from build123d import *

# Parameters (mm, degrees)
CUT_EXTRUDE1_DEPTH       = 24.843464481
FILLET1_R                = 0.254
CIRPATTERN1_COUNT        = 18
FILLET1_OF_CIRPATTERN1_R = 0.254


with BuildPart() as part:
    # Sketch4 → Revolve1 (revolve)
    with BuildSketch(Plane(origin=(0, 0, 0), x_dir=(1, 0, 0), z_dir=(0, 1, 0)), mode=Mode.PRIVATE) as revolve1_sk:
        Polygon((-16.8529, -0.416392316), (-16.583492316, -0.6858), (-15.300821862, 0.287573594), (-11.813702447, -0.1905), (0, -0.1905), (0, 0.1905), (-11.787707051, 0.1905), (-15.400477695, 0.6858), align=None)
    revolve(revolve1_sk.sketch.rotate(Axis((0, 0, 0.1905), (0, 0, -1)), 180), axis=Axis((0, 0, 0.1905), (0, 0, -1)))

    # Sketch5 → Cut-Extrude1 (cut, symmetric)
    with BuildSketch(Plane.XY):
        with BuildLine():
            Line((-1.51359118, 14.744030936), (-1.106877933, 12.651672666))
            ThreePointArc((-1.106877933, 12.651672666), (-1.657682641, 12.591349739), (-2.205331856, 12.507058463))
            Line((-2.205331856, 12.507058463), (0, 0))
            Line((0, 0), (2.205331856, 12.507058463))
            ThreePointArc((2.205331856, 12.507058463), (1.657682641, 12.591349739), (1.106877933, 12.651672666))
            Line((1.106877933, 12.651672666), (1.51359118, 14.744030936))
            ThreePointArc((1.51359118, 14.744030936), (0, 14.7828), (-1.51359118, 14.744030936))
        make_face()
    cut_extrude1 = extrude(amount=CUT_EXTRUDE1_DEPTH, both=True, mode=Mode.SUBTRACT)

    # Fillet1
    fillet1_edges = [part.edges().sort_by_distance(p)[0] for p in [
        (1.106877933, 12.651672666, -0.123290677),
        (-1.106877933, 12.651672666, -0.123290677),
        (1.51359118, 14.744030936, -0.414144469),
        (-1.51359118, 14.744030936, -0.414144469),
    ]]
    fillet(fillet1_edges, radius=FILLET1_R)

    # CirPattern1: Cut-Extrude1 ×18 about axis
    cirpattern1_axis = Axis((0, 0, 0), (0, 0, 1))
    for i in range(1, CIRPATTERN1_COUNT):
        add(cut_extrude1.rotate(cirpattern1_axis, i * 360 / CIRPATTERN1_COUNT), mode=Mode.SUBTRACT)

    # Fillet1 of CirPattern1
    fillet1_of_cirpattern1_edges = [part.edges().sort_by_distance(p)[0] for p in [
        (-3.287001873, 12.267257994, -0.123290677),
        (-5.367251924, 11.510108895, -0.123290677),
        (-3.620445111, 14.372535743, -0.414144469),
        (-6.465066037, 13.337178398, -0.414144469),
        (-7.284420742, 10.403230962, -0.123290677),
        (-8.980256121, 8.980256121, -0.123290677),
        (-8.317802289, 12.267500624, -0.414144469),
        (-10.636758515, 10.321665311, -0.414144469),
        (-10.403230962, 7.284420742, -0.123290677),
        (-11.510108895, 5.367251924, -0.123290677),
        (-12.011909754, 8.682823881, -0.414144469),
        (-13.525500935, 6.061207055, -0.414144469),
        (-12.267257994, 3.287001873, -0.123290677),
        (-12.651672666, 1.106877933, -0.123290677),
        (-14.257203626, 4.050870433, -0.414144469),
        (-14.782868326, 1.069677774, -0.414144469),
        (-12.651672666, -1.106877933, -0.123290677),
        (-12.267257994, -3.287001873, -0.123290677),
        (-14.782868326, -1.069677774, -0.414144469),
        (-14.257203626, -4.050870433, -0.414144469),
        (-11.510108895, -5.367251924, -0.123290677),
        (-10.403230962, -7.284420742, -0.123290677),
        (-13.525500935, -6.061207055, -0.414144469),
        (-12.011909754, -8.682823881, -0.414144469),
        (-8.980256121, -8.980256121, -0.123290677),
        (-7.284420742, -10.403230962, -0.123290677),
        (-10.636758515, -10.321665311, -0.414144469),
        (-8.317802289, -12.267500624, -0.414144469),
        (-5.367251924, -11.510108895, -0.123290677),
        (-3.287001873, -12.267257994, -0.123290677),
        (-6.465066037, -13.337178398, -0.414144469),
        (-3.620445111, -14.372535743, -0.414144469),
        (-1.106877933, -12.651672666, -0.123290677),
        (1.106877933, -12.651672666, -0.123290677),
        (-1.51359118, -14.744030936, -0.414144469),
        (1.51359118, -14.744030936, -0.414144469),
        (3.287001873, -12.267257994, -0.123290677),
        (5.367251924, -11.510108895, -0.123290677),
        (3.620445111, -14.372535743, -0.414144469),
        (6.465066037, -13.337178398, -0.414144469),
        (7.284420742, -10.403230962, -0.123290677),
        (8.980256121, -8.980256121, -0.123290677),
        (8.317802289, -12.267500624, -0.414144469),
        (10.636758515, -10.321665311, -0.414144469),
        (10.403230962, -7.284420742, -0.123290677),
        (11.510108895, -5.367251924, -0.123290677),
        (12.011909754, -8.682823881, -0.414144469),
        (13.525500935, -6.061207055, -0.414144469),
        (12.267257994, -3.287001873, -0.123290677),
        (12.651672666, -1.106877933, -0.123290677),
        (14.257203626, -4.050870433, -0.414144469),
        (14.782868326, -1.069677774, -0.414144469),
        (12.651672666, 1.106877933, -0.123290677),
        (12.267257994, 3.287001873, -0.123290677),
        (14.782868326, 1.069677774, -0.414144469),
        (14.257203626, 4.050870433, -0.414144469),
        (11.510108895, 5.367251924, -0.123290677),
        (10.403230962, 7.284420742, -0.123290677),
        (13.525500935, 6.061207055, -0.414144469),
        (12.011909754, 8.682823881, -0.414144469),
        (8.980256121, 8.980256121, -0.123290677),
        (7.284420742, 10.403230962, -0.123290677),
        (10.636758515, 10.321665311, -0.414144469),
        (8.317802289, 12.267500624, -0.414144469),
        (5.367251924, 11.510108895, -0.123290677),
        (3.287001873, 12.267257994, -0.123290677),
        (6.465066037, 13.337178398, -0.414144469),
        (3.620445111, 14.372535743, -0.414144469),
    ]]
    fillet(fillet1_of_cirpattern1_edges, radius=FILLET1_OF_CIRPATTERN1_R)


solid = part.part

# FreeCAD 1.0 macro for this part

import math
import FreeCAD as App
import Part
import Sketcher
Q = App.Units.Quantity


def edges_at(feature, points):
    """Names of the edges that pass closest to the given points."""
    edges = feature.Shape.Edges
    near = lambda p: min(range(len(edges)), key=lambda i: edges[i].distToShape(Part.Vertex(*p))[0])
    return sorted({f"Edge{near(p) + 1}" for p in points})


def add_polygon(sketch, points):
    """Adds a closed chain of lines whose ends are joined by coincident constraints."""
    first, n = sketch.GeometryCount, len(points)
    for a, b in zip(points, points[1:] + points[:1]):
        sketch.addGeometry(Part.LineSegment(App.Vector(*a, 0), App.Vector(*b, 0)), False)
    for i in range(n):
        sketch.addConstraint(Sketcher.Constraint("Coincident", first + i, 2, first + (i + 1) % n, 1))

doc = App.newDocument("Part")
body = doc.addObject("PartDesign::Body", "Body")

sketch1 = body.newObject("Sketcher::SketchObject", "Sketch")
sketch1.AttachmentSupport = (doc.getObject("XZ_Plane"), [""])
sketch1.MapMode = "FlatFace"
add_polygon(sketch1, [(-16.85, 0.42), (-16.58, 0.69), (-15.3, -0.29), (-11.81, 0.19), (0, 0.19), (0, -0.19), (-11.79, -0.19), (-15.4, -0.69)])
sketch1.addConstraint(Sketcher.Constraint("Horizontal", 3))
sketch1.addConstraint(Sketcher.Constraint("Vertical", 4))
sketch1.addConstraint(Sketcher.Constraint("Horizontal", 5))
sketch1.addConstraint(Sketcher.Constraint("Symmetric", 3, 2, 4, 2, -1, 1))
sketch1.addConstraint(Sketcher.Constraint("Parallel", 2, 6))
sketch1.addConstraint(Sketcher.Constraint("Parallel", 1, 7))
sketch1.addConstraint(Sketcher.Constraint("Angle", 0, Q("45 deg")))
sketch1.addConstraint(Sketcher.Constraint("DistanceY", 4, 2, 4, 1, Q("0.015 in")))
sketch1.addConstraint(Sketcher.Constraint("Distance", 0, Q("0.015 in")))
sketch1.addConstraint(Sketcher.Constraint("DistanceY", -1, 1, 0, 2, Q("0.027 in")))
sketch1.addConstraint(Sketcher.Constraint("DistanceY", 6, 2, -1, 1, Q("0.027 in")))
sketch1.addConstraint(Sketcher.Constraint("DistanceX", 7, 2, -1, 1, Q("0.6635 in")))
sketch1.addConstraint(Sketcher.Constraint("Distance", 2, Q("3.519738 mm")))
sketch1.addConstraint(Sketcher.Constraint("DistanceX", 3, 1, 3, 2, Q("11.813702 mm")))
sketch1.addConstraint(Sketcher.Constraint("DistanceX", 5, 2, 5, 1, Q("11.787707 mm")))
revolution = body.newObject("PartDesign::Revolution", "Revolution")
revolution.Profile = sketch1
revolution.ReferenceAxis = (sketch1, ["V_Axis"])
revolution.Angle = 360

sketch2 = body.newObject("Sketcher::SketchObject", "Sketch001")
sketch2.AttachmentSupport = (doc.getObject("XY_Plane"), [""])
sketch2.MapMode = "FlatFace"
sketch2.addGeometry(Part.LineSegment(App.Vector(-1.5, 14.7, 0), App.Vector(-1.1, 12.7, 0)), False)
sketch2.addGeometry(Part.ArcOfCircle(Part.Circle(App.Vector(0, 0, 0), App.Vector(0, 0, 1), 12.7), math.radians(95), math.radians(100)), False)
sketch2.addGeometry(Part.LineSegment(App.Vector(-2.2, 12.5, 0), App.Vector(0, 0, 0)), False)
sketch2.addGeometry(Part.LineSegment(App.Vector(0, 0, 0), App.Vector(2.2, 12.5, 0)), False)
sketch2.addGeometry(Part.ArcOfCircle(Part.Circle(App.Vector(0, 0, 0), App.Vector(0, 0, 1), 12.7), math.radians(80), math.radians(85)), False)
sketch2.addGeometry(Part.LineSegment(App.Vector(1.1, 12.7, 0), App.Vector(1.5, 14.7, 0)), False)
sketch2.addGeometry(Part.ArcOfCircle(Part.Circle(App.Vector(0, -14.8, 0), App.Vector(0, 0, 1), 29.6), math.radians(87.07), math.radians(92.93)), False)
sketch2.addConstraint(Sketcher.Constraint("Coincident", 0, 2, 1, 1))
sketch2.addConstraint(Sketcher.Constraint("Coincident", 1, 2, 2, 1))
sketch2.addConstraint(Sketcher.Constraint("Coincident", 2, 2, 3, 1))
sketch2.addConstraint(Sketcher.Constraint("Coincident", 3, 2, 4, 1))
sketch2.addConstraint(Sketcher.Constraint("Coincident", 4, 2, 5, 1))
sketch2.addConstraint(Sketcher.Constraint("Coincident", 5, 2, 6, 1))
sketch2.addConstraint(Sketcher.Constraint("Coincident", 6, 2, 0, 1))
sketch2.addConstraint(Sketcher.Constraint("Coincident", 1, 3, -1, 1))
sketch2.addConstraint(Sketcher.Constraint("Coincident", 4, 3, -1, 1))
sketch2.addConstraint(Sketcher.Constraint("Coincident", 2, 2, -1, 1))
sketch2.addConstraint(Sketcher.Constraint("Equal", 1, 4))
sketch2.addConstraint(Sketcher.Constraint("Symmetric", 5, 2, 6, 2, -2))
sketch2.addConstraint(Sketcher.Constraint("Horizontal", 1, 2, 3, 2))
sketch2.addConstraint(Sketcher.Constraint("Horizontal", 0, 2, 4, 2))
sketch2.addConstraint(Sketcher.Constraint("Radius", 1, Q("0.5 in")))
sketch2.addConstraint(Sketcher.Constraint("Angle", 0, Q("-79 deg")))
sketch2.addConstraint(Sketcher.Constraint("Angle", 2, Q("-80 deg")))
sketch2.addConstraint(Sketcher.Constraint("Radius", 6, Q("1.164 in")))
sketch2.addConstraint(Sketcher.Constraint("DistanceY", 6, 3, -1, 1, Q("0.582 in")))
sketch2.addConstraint(Sketcher.Constraint("Distance", 0, Q("2.13152 mm")))
pocket1 = body.newObject("PartDesign::Pocket", "Pocket")
pocket1.Profile = sketch2
pocket1.Length = 49.686929
pocket1.Midplane = True
doc.recompute()

fillet = body.newObject("PartDesign::Fillet", "Fillet")
fillet.Base = (pocket1, edges_at(pocket1, [
    (1.107, 12.652, -0.123),
    (-1.107, 12.652, -0.123),
    (1.514, 14.744, -0.414),
    (-1.514, 14.744, -0.414),
]))
fillet.Radius = Q("0.01 in")
doc.recompute()

polarpattern = body.newObject("PartDesign::PolarPattern", "PolarPattern")
polarpattern.Originals = [pocket1]
polarpattern.Axis = (doc.getObject("Z_Axis"), [""])
polarpattern.Angle = 360
polarpattern.Occurrences = 18
body.Tip = polarpattern
doc.recompute()

fillet2 = body.newObject("PartDesign::Fillet", "Fillet001")
fillet2.Base = (polarpattern, edges_at(polarpattern, [
    (-3.287, 12.267, -0.123),
    (-5.367, 11.51, -0.123),
    (-3.62, 14.373, -0.414),
    (-6.465, 13.337, -0.414),
    (-7.284, 10.403, -0.123),
    (-8.98, 8.98, -0.123),
    (-8.318, 12.268, -0.414),
    (-10.637, 10.322, -0.414),
    (-10.403, 7.284, -0.123),
    (-11.51, 5.367, -0.123),
    (-12.012, 8.683, -0.414),
    (-13.526, 6.061, -0.414),
    (-12.267, 3.287, -0.123),
    (-12.652, 1.107, -0.123),
    (-14.257, 4.051, -0.414),
    (-14.783, 1.07, -0.414),
    (-12.652, -1.107, -0.123),
    (-12.267, -3.287, -0.123),
    (-14.783, -1.07, -0.414),
    (-14.257, -4.051, -0.414),
    (-11.51, -5.367, -0.123),
    (-10.403, -7.284, -0.123),
    (-13.526, -6.061, -0.414),
    (-12.012, -8.683, -0.414),
    (-8.98, -8.98, -0.123),
    (-7.284, -10.403, -0.123),
    (-10.637, -10.322, -0.414),
    (-8.318, -12.268, -0.414),
    (-5.367, -11.51, -0.123),
    (-3.287, -12.267, -0.123),
    (-6.465, -13.337, -0.414),
    (-3.62, -14.373, -0.414),
    (-1.107, -12.652, -0.123),
    (1.107, -12.652, -0.123),
    (-1.514, -14.744, -0.414),
    (1.514, -14.744, -0.414),
    (3.287, -12.267, -0.123),
    (5.367, -11.51, -0.123),
    (3.62, -14.373, -0.414),
    (6.465, -13.337, -0.414),
    (7.284, -10.403, -0.123),
    (8.98, -8.98, -0.123),
    (8.318, -12.268, -0.414),
    (10.637, -10.322, -0.414),
    (10.403, -7.284, -0.123),
    (11.51, -5.367, -0.123),
    (12.012, -8.683, -0.414),
    (13.526, -6.061, -0.414),
    (12.267, -3.287, -0.123),
    (12.652, -1.107, -0.123),
    (14.257, -4.051, -0.414),
    (14.783, -1.07, -0.414),
    (12.652, 1.107, -0.123),
    (12.267, 3.287, -0.123),
    (14.783, 1.07, -0.414),
    (14.257, 4.051, -0.414),
    (11.51, 5.367, -0.123),
    (10.403, 7.284, -0.123),
    (13.526, 6.061, -0.414),
    (12.012, 8.683, -0.414),
    (8.98, 8.98, -0.123),
    (7.284, 10.403, -0.123),
    (10.637, 10.322, -0.414),
    (8.318, 12.268, -0.414),
    (5.367, 11.51, -0.123),
    (3.287, 12.267, -0.123),
    (6.465, 13.337, -0.414),
    (3.62, 14.373, -0.414),
]))
fillet2.Radius = Q("0.01 in")

doc.recompute()
